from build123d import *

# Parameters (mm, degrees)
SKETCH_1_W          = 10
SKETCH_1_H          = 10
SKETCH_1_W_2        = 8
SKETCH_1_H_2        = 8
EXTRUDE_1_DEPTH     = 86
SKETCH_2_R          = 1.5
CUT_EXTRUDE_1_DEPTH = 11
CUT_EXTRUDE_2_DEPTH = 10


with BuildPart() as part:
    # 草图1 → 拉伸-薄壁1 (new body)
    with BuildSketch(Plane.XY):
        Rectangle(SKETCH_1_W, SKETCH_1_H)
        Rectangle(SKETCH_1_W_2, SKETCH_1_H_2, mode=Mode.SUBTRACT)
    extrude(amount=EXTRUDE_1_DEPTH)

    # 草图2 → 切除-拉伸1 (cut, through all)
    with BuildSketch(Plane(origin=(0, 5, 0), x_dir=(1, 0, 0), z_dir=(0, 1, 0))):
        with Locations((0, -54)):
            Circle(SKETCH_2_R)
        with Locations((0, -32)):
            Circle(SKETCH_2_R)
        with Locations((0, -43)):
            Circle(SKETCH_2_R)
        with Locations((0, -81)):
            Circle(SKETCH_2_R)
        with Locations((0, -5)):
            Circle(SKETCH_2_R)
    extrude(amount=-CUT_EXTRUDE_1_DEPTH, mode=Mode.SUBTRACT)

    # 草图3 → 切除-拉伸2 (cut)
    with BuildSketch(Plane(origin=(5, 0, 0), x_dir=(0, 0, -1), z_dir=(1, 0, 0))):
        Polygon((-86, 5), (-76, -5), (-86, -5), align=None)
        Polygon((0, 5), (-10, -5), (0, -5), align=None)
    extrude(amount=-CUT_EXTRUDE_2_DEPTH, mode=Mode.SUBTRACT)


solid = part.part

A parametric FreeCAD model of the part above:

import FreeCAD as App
import Part
import Sketcher

V = App.Vector


def add_polygon(sketch, points):
    """Adds a closed chain of lines whose ends are joined by coincident constraints."""
    first, n = sketch.GeometryCount, len(points)
    for a, b in zip(points, points[1:] + points[:1]):
        sketch.addGeometry(Part.LineSegment(App.Vector(*a, 0), App.Vector(*b, 0)), False)
    for i in range(n):
        sketch.addConstraint(Sketcher.Constraint("Coincident", first + i, 2, first + (i + 1) % n, 1))

doc = App.newDocument("Part")
params = doc.addObject("Spreadsheet::Sheet", "Params")
for row, (alias, value) in enumerate([
    ("sketch1_width", "10 mm"),
    ("sketch1_width2", "8 mm"),
    ("pad1_length", "86 mm"),
    ("sketch2_diameter", "3 mm"),
    ("sketch3_width", "10 mm"),
    ("pocket2_length", "10 mm"),
], start=1):
    params.set(f"A{row}", alias)
    params.set(f"B{row}", "=" + value)
    params.setAlias(f"B{row}", alias)

body = doc.addObject("PartDesign::Body", "Body")

sketch1 = body.newObject("Sketcher::SketchObject", "Sketch")
sketch1.AttachmentSupport = (doc.getObject("XY_Plane"), [""])
sketch1.MapMode = "FlatFace"
add_polygon(sketch1, [(-5, 5), (-5, -5), (5, -5), (5, 5)])
add_polygon(sketch1, [(4, -4), (-4, -4), (-4, 4), (4, 4)])
sketch1.addConstraint([
    Sketcher.Constraint("Vertical", 0),
    Sketcher.Constraint("Horizontal", 1),
    Sketcher.Constraint("Vertical", 2),
    Sketcher.Constraint("Horizontal", 3),
    Sketcher.Constraint("Horizontal", 4),
    Sketcher.Constraint("Vertical", 5),
    Sketcher.Constraint("Horizontal", 6),
    Sketcher.Constraint("Vertical", 7),
    Sketcher.Constraint("Symmetric", 0, 2, 2, 2, -1, 1),
    Sketcher.Constraint("Symmetric", 4, 2, 6, 2, -1, 1),
    Sketcher.Constraint("Equal", 3, 0),
    Sketcher.Constraint("Equal", 6, 5),
    Sketcher.Constraint("DistanceX", 1, 1, 1, 2, 10.0),
    Sketcher.Constraint("DistanceX", 4, 2, 4, 1, 8.0),
])
sketch1.setExpression("Constraints[20]", "Params.sketch1_width")
sketch1.setExpression("Constraints[21]", "Params.sketch1_width2")
pad1 = body.newObject("PartDesign::Pad", "Pad")
pad1.Profile = sketch1
pad1.setExpression("Length", "Params.pad1_length")

sketch2 = body.newObject("Sketcher::SketchObject", "Sketch001")
sketch2.AttachmentSupport = (doc.getObject("XZ_Plane"), [""])
sketch2.MapMode = "FlatFace"
sketch2.AttachmentOffset = App.Placement(V(0, 0, -5), App.Rotation())
sketch2.addGeometry([
    Part.Circle(V(0, 54, 0), V(0, 0, 1), 1.5),
    Part.Circle(V(0, 32, 0), V(0, 0, 1), 1.5),
    Part.Circle(V(0, 43, 0), V(0, 0, 1), 1.5),
    Part.Circle(V(0, 81, 0), V(0, 0, 1), 1.5),
    Part.Circle(V(0, 5, 0), V(0, 0, 1), 1.5),
], False)
sketch2.addConstraint([
    Sketcher.Constraint("Equal", 0, 1),
    Sketcher.Constraint("Equal", 1, 2),
    Sketcher.Constraint("Equal", 2, 3),
    Sketcher.Constraint("Equal", 3, 4),
    Sketcher.Constraint("PointOnObject", 0, 3, -2),
    Sketcher.Constraint("PointOnObject", 1, 3, -2),
    Sketcher.Constraint("PointOnObject", 2, 3, -2),
    Sketcher.Constraint("PointOnObject", 3, 3, -2),
    Sketcher.Constraint("PointOnObject", 4, 3, -2),
    Sketcher.Constraint("Diameter", 0, 3.0),
    Sketcher.Constraint("DistanceY", -1, 1, 0, 3, 54.0),
    Sketcher.Constraint("DistanceY", -1, 1, 1, 3, 32.0),
    Sketcher.Constraint("DistanceY", -1, 1, 2, 3, 43.0),
    Sketcher.Constraint("DistanceY", -1, 1, 3, 3, 81.0),
    Sketcher.Constraint("DistanceY", -1, 1, 4, 3, 5.0),
])
sketch2.setExpression("Constraints[9]", "Params.sketch2_diameter")
pocket1 = body.newObject("PartDesign::Pocket", "Pocket")
pocket1.Profile = sketch2
pocket1.Type = "ThroughAll"
pocket1.Reversed = True

sketch3 = body.newObject("Sketcher::SketchObject", "Sketch002")
sketch3.AttachmentSupport = (doc.getObject("YZ_Plane"), [""])
sketch3.MapMode = "FlatFace"
sketch3.AttachmentOffset = App.Placement(V(0, 0, 5), App.Rotation())
add_polygon(sketch3, [(-5, 76), (5, 86), (-5, 86)])
add_polygon(sketch3, [(5, 0), (-5, 10), (-5, 0)])
sketch3.addConstraint([
    Sketcher.Constraint("Horizontal", 1),
    Sketcher.Constraint("Vertical", 2),
    Sketcher.Constraint("Vertical", 4),
    Sketcher.Constraint("Horizontal", 5),
    Sketcher.Constraint("Symmetric", 4, 2, 5, 2, -1, 1),
    Sketcher.Constraint("Perpendicular", 0, 3),
    Sketcher.Constraint("Vertical", 2, 2, 3, 2),
    Sketcher.Constraint("Vertical", 0, 2, 5, 2),
    Sketcher.Constraint("Equal", 5, 2),
    Sketcher.Constraint("DistanceX", 1, 2, 1, 1, 10.0),
    Sketcher.Constraint("DistanceY", -1, 1, 0, 2, 86.0),
])
sketch3.setExpression("Constraints[15]", "Params.sketch3_width")
pocket2 = body.newObject("PartDesign::Pocket", "Pocket001")
pocket2.Profile = sketch3
pocket2.setExpression("Length", "Params.pocket2_length")

doc.recompute()
